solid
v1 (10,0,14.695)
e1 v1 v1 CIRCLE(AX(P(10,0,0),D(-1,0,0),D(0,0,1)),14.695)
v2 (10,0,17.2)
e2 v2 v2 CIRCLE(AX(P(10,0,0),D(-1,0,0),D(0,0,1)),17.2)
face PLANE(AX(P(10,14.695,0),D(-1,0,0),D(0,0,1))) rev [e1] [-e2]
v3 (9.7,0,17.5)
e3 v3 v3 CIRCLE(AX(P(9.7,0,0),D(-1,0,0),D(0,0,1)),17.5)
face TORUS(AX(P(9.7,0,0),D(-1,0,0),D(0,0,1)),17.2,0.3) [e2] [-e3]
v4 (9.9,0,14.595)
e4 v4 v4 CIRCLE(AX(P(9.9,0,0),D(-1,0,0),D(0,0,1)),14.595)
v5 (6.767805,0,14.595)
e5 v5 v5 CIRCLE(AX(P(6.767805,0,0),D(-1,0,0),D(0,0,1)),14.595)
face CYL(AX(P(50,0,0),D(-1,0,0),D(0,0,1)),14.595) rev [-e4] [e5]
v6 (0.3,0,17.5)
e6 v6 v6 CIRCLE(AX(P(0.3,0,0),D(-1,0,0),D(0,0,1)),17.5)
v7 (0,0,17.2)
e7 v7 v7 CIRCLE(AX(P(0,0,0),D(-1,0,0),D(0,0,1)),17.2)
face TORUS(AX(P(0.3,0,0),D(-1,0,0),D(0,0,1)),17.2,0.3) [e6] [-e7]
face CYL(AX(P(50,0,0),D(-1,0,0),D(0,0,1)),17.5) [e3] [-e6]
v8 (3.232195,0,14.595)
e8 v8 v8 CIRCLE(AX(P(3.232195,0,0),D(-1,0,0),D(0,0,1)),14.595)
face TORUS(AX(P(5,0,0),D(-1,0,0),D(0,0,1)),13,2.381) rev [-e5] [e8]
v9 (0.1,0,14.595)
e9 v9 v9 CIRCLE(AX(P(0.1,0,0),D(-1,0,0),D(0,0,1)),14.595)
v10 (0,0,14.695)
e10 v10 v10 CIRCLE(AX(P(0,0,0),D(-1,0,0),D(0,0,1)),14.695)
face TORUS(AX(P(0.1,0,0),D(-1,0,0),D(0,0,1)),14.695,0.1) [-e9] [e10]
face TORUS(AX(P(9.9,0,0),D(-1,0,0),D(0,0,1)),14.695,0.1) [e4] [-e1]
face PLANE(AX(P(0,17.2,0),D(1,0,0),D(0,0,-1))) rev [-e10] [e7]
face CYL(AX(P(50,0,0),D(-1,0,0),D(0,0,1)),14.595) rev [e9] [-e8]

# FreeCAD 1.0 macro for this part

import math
import FreeCAD as App
import Part
import Sketcher

V = App.Vector

doc = App.newDocument("Part")
body = doc.addObject("PartDesign::Body", "Body")

sketch1 = body.newObject("Sketcher::SketchObject", "Sketch")
sketch1.AttachmentSupport = (doc.getObject("XY_Plane"), [""])
sketch1.MapMode = "FlatFace"
sketch1.addGeometry(Part.LineSegment(V(0, 17.2, 0), V(0, 14.695, 0)), False)
sketch1.addGeometry(Part.ArcOfCircle(Part.Circle(V(0.1, 14.695, 0), V(0, 0, 1), 0.1), math.radians(180), math.radians(270)), False)
sketch1.addGeometry(Part.LineSegment(V(0.1, 14.595, 0), V(3.232195, 14.595, 0)), False)
sketch1.addGeometry(Part.ArcOfCircle(Part.Circle(V(5, 13, 0), V(0, 0, 1), 2.381), math.radians(42.058313), math.radians(137.941687)), False)
sketch1.addGeometry(Part.LineSegment(V(6.767805, 14.595, 0), V(9.9, 14.595, 0)), False)
sketch1.addGeometry(Part.ArcOfCircle(Part.Circle(V(9.9, 14.695, 0), V(0, 0, 1), 0.1), math.radians(-90), math.radians(0)), False)
sketch1.addGeometry(Part.LineSegment(V(10, 14.695, 0), V(10, 17.2, 0)), False)
sketch1.addGeometry(Part.ArcOfCircle(Part.Circle(V(9.7, 17.2, 0), V(0, 0, 1), 0.3), math.radians(0), math.radians(90)), False)
sketch1.addGeometry(Part.LineSegment(V(9.7, 17.5, 0), V(0.3, 17.5, 0)), False)
sketch1.addGeometry(Part.ArcOfCircle(Part.Circle(V(0.3, 17.2, 0), V(0, 0, 1), 0.3), math.radians(90), math.radians(180)), False)
sketch1.addConstraint(Sketcher.Constraint("Tangent", 0, 2, 1, 1))
sketch1.addConstraint(Sketcher.Constraint("Tangent", 1, 2, 2, 1))
sketch1.addConstraint(Sketcher.Constraint("Coincident", 2, 2, 3, 2))
sketch1.addConstraint(Sketcher.Constraint("Coincident", 3, 1, 4, 1))
sketch1.addConstraint(Sketcher.Constraint("Tangent", 4, 2, 5, 1))
sketch1.addConstraint(Sketcher.Constraint("Tangent", 5, 2, 6, 1))
sketch1.addConstraint(Sketcher.Constraint("Tangent", 6, 2, 7, 1))
sketch1.addConstraint(Sketcher.Constraint("Tangent", 7, 2, 8, 1))
sketch1.addConstraint(Sketcher.Constraint("Tangent", 8, 2, 9, 1))
sketch1.addConstraint(Sketcher.Constraint("Tangent", 9, 2, 0, 1))
sketch1.addConstraint(Sketcher.Constraint("Vertical", 0))
sketch1.addConstraint(Sketcher.Constraint("Horizontal", 2))
sketch1.addConstraint(Sketcher.Constraint("Horizontal", 4))
sketch1.addConstraint(Sketcher.Constraint("Vertical", 6))
sketch1.addConstraint(Sketcher.Constraint("Horizontal", 8))
sketch1.addConstraint(Sketcher.Constraint("Equal", 1, 5))
sketch1.addConstraint(Sketcher.Constraint("Equal", 7, 9))
sketch1.addConstraint(Sketcher.Constraint("PointOnObject", 0, 2, -2))
sketch1.addConstraint(Sketcher.Constraint("Horizontal", 1, 3, 5, 3))
sketch1.addConstraint(Sketcher.Constraint("Equal", 2, 4))
sketch1.addConstraint(Sketcher.Constraint("Radius", 1, 0.1))
sketch1.addConstraint(Sketcher.Constraint("Radius", 7, 0.3))
sketch1.addConstraint(Sketcher.Constraint("DistanceX", 8, 2, 8, 1, 9.4))
sketch1.addConstraint(Sketcher.Constraint("DistanceY", -1, 1, 3, 3, 13.0))
sketch1.addConstraint(Sketcher.Constraint("Radius", 3, 2.381))
sketch1.addConstraint(Sketcher.Constraint("DistanceY", -1, 1, 7, 3, 17.2))
sketch1.addConstraint(Sketcher.Constraint("DistanceY", 0, 2, 0, 1, 2.505))
revolution = body.newObject("PartDesign::Revolution", "Revolution")
revolution.Profile = sketch1
revolution.ReferenceAxis = (sketch1, ["H_Axis"])
revolution.Angle = 360

doc.recompute()
